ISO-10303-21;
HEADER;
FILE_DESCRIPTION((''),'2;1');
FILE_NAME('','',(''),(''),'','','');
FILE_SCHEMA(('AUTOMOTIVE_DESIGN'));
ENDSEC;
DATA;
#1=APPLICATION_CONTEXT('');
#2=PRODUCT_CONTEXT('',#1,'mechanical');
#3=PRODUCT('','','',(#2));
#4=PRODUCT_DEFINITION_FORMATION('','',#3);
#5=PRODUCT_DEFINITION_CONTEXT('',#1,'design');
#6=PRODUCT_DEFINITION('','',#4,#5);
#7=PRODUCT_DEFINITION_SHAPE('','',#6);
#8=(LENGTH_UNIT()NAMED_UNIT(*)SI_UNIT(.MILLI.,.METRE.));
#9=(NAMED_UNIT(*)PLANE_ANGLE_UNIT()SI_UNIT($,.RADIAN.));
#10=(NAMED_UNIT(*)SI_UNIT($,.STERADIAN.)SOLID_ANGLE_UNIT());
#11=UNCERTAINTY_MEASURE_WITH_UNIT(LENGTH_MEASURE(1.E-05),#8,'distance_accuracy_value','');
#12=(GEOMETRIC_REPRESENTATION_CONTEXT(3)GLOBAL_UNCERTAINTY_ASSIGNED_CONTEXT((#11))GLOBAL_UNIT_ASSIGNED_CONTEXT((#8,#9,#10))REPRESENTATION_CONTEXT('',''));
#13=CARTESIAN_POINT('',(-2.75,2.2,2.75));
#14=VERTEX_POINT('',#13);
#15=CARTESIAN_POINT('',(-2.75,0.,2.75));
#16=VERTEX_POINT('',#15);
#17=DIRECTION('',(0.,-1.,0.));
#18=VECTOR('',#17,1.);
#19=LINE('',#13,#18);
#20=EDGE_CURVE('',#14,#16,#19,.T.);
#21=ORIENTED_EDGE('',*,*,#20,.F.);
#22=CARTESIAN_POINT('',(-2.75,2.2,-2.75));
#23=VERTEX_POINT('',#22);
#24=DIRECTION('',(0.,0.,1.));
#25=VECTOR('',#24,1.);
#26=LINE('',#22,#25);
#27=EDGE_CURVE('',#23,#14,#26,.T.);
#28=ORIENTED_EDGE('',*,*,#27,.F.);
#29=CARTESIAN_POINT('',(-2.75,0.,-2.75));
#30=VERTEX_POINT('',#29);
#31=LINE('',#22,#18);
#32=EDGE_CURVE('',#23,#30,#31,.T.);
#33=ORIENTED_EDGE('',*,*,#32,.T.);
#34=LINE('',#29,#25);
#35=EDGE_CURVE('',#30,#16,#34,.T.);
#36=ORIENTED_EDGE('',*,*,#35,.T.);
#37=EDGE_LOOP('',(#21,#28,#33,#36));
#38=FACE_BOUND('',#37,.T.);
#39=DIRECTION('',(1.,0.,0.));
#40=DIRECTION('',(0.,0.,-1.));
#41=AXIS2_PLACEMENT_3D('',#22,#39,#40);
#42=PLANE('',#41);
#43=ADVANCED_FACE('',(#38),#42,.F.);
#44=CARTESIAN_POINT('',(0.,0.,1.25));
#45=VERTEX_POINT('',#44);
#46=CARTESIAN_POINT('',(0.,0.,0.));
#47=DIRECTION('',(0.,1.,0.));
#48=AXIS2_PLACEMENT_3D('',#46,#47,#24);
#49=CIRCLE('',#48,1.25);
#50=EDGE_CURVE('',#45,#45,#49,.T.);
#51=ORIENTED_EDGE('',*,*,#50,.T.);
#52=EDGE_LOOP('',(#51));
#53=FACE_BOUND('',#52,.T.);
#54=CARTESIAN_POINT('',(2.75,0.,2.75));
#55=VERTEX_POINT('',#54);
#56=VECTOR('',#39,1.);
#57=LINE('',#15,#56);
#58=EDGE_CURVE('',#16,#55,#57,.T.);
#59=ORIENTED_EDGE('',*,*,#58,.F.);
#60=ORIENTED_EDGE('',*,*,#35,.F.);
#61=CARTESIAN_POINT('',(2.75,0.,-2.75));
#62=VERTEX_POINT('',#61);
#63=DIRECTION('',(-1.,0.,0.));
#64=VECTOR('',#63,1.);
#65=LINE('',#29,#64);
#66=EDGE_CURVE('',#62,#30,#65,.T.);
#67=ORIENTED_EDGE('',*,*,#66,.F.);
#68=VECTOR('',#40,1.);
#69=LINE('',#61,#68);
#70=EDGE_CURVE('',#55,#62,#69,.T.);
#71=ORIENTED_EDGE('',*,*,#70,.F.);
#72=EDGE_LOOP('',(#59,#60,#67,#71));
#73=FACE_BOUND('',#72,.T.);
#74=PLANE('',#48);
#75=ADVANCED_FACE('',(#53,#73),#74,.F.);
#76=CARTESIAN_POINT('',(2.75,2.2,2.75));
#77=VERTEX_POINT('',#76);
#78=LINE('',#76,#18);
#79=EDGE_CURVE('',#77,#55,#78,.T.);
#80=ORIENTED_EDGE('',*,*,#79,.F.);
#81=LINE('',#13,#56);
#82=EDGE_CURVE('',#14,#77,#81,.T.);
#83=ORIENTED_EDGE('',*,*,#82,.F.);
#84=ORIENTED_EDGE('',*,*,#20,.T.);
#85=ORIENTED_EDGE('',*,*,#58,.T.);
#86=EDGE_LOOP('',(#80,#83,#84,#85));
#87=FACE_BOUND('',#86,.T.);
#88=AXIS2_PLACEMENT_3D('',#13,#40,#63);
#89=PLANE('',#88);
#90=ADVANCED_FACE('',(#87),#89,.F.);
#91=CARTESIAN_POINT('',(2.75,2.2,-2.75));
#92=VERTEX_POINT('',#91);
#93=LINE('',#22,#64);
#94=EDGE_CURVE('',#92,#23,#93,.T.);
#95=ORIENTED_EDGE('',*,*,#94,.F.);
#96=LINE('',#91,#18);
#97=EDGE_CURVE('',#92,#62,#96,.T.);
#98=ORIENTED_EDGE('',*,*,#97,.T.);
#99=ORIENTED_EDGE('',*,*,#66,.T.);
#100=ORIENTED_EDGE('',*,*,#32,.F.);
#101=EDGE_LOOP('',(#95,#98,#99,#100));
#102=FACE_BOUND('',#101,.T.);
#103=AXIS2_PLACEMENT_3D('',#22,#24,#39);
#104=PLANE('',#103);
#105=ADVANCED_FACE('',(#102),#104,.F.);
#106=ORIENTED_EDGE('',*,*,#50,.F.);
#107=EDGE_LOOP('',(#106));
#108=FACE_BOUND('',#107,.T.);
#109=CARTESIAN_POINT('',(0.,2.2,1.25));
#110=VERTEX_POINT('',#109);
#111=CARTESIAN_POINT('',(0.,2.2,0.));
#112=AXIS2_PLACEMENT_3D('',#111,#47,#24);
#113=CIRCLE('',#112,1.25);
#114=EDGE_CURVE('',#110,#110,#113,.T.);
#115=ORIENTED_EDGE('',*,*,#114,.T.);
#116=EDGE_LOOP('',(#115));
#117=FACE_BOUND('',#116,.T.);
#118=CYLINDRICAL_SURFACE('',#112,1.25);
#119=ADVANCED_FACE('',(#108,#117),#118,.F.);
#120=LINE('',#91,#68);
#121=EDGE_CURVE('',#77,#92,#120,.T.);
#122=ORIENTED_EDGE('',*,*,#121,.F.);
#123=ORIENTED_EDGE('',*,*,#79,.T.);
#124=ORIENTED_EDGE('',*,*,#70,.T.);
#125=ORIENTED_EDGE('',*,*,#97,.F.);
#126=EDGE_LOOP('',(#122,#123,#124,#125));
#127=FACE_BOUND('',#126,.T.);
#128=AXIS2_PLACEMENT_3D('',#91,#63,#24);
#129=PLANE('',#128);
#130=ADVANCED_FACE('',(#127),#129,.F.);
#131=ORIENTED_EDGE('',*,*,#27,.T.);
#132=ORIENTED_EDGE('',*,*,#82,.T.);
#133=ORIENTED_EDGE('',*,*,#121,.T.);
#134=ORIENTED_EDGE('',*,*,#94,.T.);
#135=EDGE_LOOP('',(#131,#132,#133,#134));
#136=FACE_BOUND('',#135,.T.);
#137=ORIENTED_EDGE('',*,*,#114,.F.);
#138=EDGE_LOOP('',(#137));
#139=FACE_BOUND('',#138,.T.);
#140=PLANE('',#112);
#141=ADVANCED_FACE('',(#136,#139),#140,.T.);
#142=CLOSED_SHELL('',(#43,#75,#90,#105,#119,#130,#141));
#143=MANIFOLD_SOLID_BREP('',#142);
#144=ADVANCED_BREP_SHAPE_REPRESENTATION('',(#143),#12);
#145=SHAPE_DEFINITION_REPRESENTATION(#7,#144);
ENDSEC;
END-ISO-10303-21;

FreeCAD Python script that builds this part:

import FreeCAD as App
import Part
import Sketcher

doc = App.newDocument("Part")
body = doc.addObject("PartDesign::Body", "Body")

# Sketch on XZ plane
sketch1 = body.newObject("Sketcher::SketchObject", "Sketch")
sketch1.AttachmentSupport = (doc.getObject("XZ_Plane"), [""])
sketch1.MapMode = "FlatFace"
sketch1.addGeometry([
    Part.LineSegment(App.Vector(-2.75, -2.75, 0), App.Vector(-2.75, 2.75, 0)),
    Part.LineSegment(App.Vector(-2.75, 2.75, 0), App.Vector(2.75, 2.75, 0)),
    Part.LineSegment(App.Vector(2.75, 2.75, 0), App.Vector(2.75, -2.75, 0)),
    Part.LineSegment(App.Vector(2.75, -2.75, 0), App.Vector(-2.75, -2.75, 0)),
], False)
sketch1.addConstraint([
    Sketcher.Constraint("Coincident", 0, 2, 1, 1),
    Sketcher.Constraint("Coincident", 1, 2, 2, 1),
    Sketcher.Constraint("Coincident", 2, 2, 3, 1),
    Sketcher.Constraint("Coincident", 3, 2, 0, 1),
    Sketcher.Constraint("Vertical", 0),
    Sketcher.Constraint("Horizontal", 1),
    Sketcher.Constraint("Vertical", 2),
    Sketcher.Constraint("Horizontal", 3),
    Sketcher.Constraint("Symmetric", 0, 2, 2, 2, -1, 1),
    Sketcher.Constraint("Equal", 3, 0),
    Sketcher.Constraint("DistanceX", 1, 1, 1, 2, 5.5),
])
pad1 = body.newObject("PartDesign::Pad", "Pad")
pad1.Profile = sketch1
pad1.Length = 2.2
pad1.Reversed = True

# Sketch on XZ plane
sketch2 = body.newObject("Sketcher::SketchObject", "Sketch001")
sketch2.AttachmentSupport = (doc.getObject("XZ_Plane"), [""])
sketch2.MapMode = "FlatFace"
sketch2.AttachmentOffset = App.Placement(App.Vector(0, 0, -2.2), App.Rotation())
sketch2.addGeometry(Part.Circle(App.Vector(0, 0, 0), App.Vector(0, 0, 1), 1.25), False)
sketch2.addConstraint([
    Sketcher.Constraint("Coincident", 0, 3, -1, 1),
    Sketcher.Constraint("Diameter", 0, 2.5),
])
doc.recompute()
hole = body.newObject("PartDesign::Hole", "Hole")
hole.Profile = sketch2
hole.ThreadType = "None"
hole.Diameter = 2.5
hole.DepthType = "ThroughAll"
hole.Reversed = True

doc.recompute()
